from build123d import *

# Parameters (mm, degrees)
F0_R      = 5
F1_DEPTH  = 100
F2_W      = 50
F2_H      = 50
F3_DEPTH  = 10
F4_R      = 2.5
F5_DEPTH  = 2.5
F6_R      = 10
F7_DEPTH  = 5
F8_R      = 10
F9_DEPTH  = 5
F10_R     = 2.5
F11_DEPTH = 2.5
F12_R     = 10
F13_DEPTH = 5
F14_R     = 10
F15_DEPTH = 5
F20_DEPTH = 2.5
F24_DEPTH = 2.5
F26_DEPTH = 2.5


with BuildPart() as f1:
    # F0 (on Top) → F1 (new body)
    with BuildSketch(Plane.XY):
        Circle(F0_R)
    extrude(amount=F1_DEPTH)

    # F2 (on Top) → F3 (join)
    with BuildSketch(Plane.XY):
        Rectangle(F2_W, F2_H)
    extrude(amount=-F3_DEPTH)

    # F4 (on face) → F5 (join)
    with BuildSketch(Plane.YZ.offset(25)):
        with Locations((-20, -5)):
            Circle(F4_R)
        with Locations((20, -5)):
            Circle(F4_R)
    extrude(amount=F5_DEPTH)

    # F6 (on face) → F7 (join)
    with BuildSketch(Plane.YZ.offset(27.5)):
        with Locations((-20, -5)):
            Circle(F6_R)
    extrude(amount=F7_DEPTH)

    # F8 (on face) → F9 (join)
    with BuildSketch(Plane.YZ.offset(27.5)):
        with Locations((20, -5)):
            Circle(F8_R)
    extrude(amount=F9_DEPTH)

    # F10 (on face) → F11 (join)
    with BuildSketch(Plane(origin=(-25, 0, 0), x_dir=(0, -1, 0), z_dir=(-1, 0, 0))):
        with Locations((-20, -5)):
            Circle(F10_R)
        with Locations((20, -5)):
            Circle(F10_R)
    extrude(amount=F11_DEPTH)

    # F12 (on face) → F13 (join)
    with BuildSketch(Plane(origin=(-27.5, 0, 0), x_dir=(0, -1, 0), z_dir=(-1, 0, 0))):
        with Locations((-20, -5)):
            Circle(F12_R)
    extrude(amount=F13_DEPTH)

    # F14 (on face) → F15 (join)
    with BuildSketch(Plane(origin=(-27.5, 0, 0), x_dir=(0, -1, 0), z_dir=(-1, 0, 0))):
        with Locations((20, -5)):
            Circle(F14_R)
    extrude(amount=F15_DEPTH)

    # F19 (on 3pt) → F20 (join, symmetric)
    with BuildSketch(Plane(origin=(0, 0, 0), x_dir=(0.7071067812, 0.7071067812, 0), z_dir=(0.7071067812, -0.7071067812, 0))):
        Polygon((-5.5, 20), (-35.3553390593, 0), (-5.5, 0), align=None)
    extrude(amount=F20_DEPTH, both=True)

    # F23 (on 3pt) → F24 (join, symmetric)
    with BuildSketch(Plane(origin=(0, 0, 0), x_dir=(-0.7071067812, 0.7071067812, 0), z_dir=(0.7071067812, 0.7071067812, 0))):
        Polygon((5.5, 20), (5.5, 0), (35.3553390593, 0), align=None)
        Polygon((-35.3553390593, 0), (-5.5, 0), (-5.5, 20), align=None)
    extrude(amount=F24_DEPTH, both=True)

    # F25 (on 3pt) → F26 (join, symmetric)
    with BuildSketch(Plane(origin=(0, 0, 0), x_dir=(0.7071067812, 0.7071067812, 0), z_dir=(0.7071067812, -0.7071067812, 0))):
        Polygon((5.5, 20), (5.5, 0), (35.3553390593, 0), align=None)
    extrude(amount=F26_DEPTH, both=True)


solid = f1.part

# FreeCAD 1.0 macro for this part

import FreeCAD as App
import Part
import Sketcher

doc = App.newDocument("Part")
params = doc.addObject("Spreadsheet::Sheet", "Params")
for row, (alias, value) in enumerate([
    ("sketch1_diameter", "10 mm"),
    ("pad1_length", "100 mm"),
    ("sketch2_width", "50 mm"),
    ("pad2_length", "10 mm"),
    ("sketch3_diameter", "5 mm"),
    ("pad3_length", "2.5 mm"),
    ("sketch4_diameter", "20 mm"),
    ("pad4_length", "5 mm"),
    ("sketch5_diameter", "20 mm"),
    ("pad5_length", "5 mm"),
    ("sketch6_diameter", "5 mm"),
    ("pad6_length", "2.5 mm"),
    ("sketch7_diameter", "20 mm"),
    ("pad7_length", "5 mm"),
    ("sketch8_diameter", "20 mm"),
    ("pad8_length", "5 mm"),
    ("sketch9_height", "20 mm"),
    ("pad9_length", "5 mm"),
    ("sketch10_height", "20 mm"),
    ("pad10_length", "5 mm"),
    ("sketch11_height", "20 mm"),
    ("pad11_length", "5 mm"),
], start=1):
    params.set(f"A{row}", alias)
    params.set(f"B{row}", "=" + value)
    params.setAlias(f"B{row}", alias)

body = doc.addObject("PartDesign::Body", "Body")

sketch1 = body.newObject("Sketcher::SketchObject", "Sketch")
sketch1.AttachmentSupport = (doc.getObject("XY_Plane"), [""])
sketch1.MapMode = "FlatFace"
sketch1.addGeometry(Part.Circle(App.Vector(0, 0, 0), App.Vector(0, 0, 1), 5), False)
sketch1.addConstraint([
    Sketcher.Constraint("Coincident", 0, 3, -1, 1),
    Sketcher.Constraint("Diameter", 0, 10.0),
])
sketch1.setExpression("Constraints[1]", "Params.sketch1_diameter")
pad1 = body.newObject("PartDesign::Pad", "Pad")
pad1.Profile = sketch1
pad1.setExpression("Length", "Params.pad1_length")

sketch2 = body.newObject("Sketcher::SketchObject", "Sketch001")
sketch2.AttachmentSupport = (doc.getObject("XY_Plane"), [""])
sketch2.MapMode = "FlatFace"
sketch2.addGeometry([
    Part.LineSegment(App.Vector(-25, 25, 0), App.Vector(-25, -25, 0)),
    Part.LineSegment(App.Vector(-25, -25, 0), App.Vector(25, -25, 0)),
    Part.LineSegment(App.Vector(25, -25, 0), App.Vector(25, 25, 0)),
    Part.LineSegment(App.Vector(25, 25, 0), App.Vector(-25, 25, 0)),
], False)
sketch2.addConstraint([
    Sketcher.Constraint("Coincident", 0, 2, 1, 1),
    Sketcher.Constraint("Coincident", 1, 2, 2, 1),
    Sketcher.Constraint("Coincident", 2, 2, 3, 1),
    Sketcher.Constraint("Coincident", 3, 2, 0, 1),
    Sketcher.Constraint("Vertical", 0),
    Sketcher.Constraint("Horizontal", 1),
    Sketcher.Constraint("Vertical", 2),
    Sketcher.Constraint("Horizontal", 3),
    Sketcher.Constraint("Symmetric", 0, 2, 2, 2, -1, 1),
    Sketcher.Constraint("Equal", 3, 0),
    Sketcher.Constraint("DistanceX", 1, 1, 1, 2, 50.0),
])
sketch2.setExpression("Constraints[10]", "Params.sketch2_width")
pad2 = body.newObject("PartDesign::Pad", "Pad001")
pad2.Profile = sketch2
pad2.setExpression("Length", "Params.pad2_length")
pad2.Reversed = True

sketch3 = body.newObject("Sketcher::SketchObject", "Sketch002")
sketch3.AttachmentSupport = (doc.getObject("YZ_Plane"), [""])
sketch3.MapMode = "FlatFace"
sketch3.AttachmentOffset = App.Placement(App.Vector(0, 0, 25), App.Rotation())
sketch3.addGeometry([
    Part.Circle(App.Vector(-20, -5, 0), App.Vector(0, 0, 1), 2.5),
    Part.Circle(App.Vector(20, -5, 0), App.Vector(0, 0, 1), 2.5),
], False)
sketch3.addConstraint([
    Sketcher.Constraint("Equal", 0, 1),
    Sketcher.Constraint("Symmetric", 0, 3, 1, 3, -2),
    Sketcher.Constraint("Diameter", 0, 5.0),
    Sketcher.Constraint("DistanceX", 0, 3, -1, 1, 20.0),
    Sketcher.Constraint("DistanceY", 0, 3, -1, 1, 5.0),
])
sketch3.setExpression("Constraints[2]", "Params.sketch3_diameter")
pad3 = body.newObject("PartDesign::Pad", "Pad002")
pad3.Profile = sketch3
pad3.setExpression("Length", "Params.pad3_length")

sketch4 = body.newObject("Sketcher::SketchObject", "Sketch003")
sketch4.AttachmentSupport = (doc.getObject("YZ_Plane"), [""])
sketch4.MapMode = "FlatFace"
sketch4.AttachmentOffset = App.Placement(App.Vector(0, 0, 27.5), App.Rotation())
sketch4.addGeometry(Part.Circle(App.Vector(-20, -5, 0), App.Vector(0, 0, 1), 10), False)
sketch4.addConstraint([
    Sketcher.Constraint("Diameter", 0, 20.0),
    Sketcher.Constraint("DistanceX", 0, 3, -1, 1, 20.0),
    Sketcher.Constraint("DistanceY", 0, 3, -1, 1, 5.0),
])
sketch4.setExpression("Constraints[0]", "Params.sketch4_diameter")
pad4 = body.newObject("PartDesign::Pad", "Pad003")
pad4.Profile = sketch4
pad4.setExpression("Length", "Params.pad4_length")

sketch5 = body.newObject("Sketcher::SketchObject", "Sketch004")
sketch5.AttachmentSupport = (doc.getObject("YZ_Plane"), [""])
sketch5.MapMode = "FlatFace"
sketch5.AttachmentOffset = App.Placement(App.Vector(0, 0, 27.5), App.Rotation())
sketch5.addGeometry(Part.Circle(App.Vector(20, -5, 0), App.Vector(0, 0, 1), 10), False)
sketch5.addConstraint([
    Sketcher.Constraint("Diameter", 0, 20.0),
    Sketcher.Constraint("DistanceX", -1, 1, 0, 3, 20.0),
    Sketcher.Constraint("DistanceY", 0, 3, -1, 1, 5.0),
])
sketch5.setExpression("Constraints[0]", "Params.sketch5_diameter")
pad5 = body.newObject("PartDesign::Pad", "Pad004")
pad5.Profile = sketch5
pad5.setExpression("Length", "Params.pad5_length")

sketch6 = body.newObject("Sketcher::SketchObject", "Sketch005")
sketch6.AttachmentSupport = (doc.getObject("YZ_Plane"), [""])
sketch6.MapMode = "FlatFace"
sketch6.AttachmentOffset = App.Placement(App.Vector(0, 0, -25), App.Rotation())
sketch6.addGeometry([
    Part.Circle(App.Vector(20, -5, 0), App.Vector(0, 0, 1), 2.5),
    Part.Circle(App.Vector(-20, -5, 0), App.Vector(0, 0, 1), 2.5),
], False)
sketch6.addConstraint([
    Sketcher.Constraint("Equal", 0, 1),
    Sketcher.Constraint("Symmetric", 0, 3, 1, 3, -2),
    Sketcher.Constraint("Diameter", 0, 5.0),
    Sketcher.Constraint("DistanceX", -1, 1, 0, 3, 20.0),
    Sketcher.Constraint("DistanceY", 0, 3, -1, 1, 5.0),
])
sketch6.setExpression("Constraints[2]", "Params.sketch6_diameter")
pad6 = body.newObject("PartDesign::Pad", "Pad005")
pad6.Profile = sketch6
pad6.setExpression("Length", "Params.pad6_length")
pad6.Reversed = True

sketch7 = body.newObject("Sketcher::SketchObject", "Sketch006")
sketch7.AttachmentSupport = (doc.getObject("YZ_Plane"), [""])
sketch7.MapMode = "FlatFace"
sketch7.AttachmentOffset = App.Placement(App.Vector(0, 0, -27.5), App.Rotation())
sketch7.addGeometry(Part.Circle(App.Vector(20, -5, 0), App.Vector(0, 0, 1), 10), False)
sketch7.addConstraint([
    Sketcher.Constraint("Diameter", 0, 20.0),
    Sketcher.Constraint("DistanceX", -1, 1, 0, 3, 20.0),
    Sketcher.Constraint("DistanceY", 0, 3, -1, 1, 5.0),
])
sketch7.setExpression("Constraints[0]", "Params.sketch7_diameter")
pad7 = body.newObject("PartDesign::Pad", "Pad006")
pad7.Profile = sketch7
pad7.setExpression("Length", "Params.pad7_length")
pad7.Reversed = True

sketch8 = body.newObject("Sketcher::SketchObject", "Sketch007")
sketch8.AttachmentSupport = (doc.getObject("YZ_Plane"), [""])
sketch8.MapMode = "FlatFace"
sketch8.AttachmentOffset = App.Placement(App.Vector(0, 0, -27.5), App.Rotation())
sketch8.addGeometry(Part.Circle(App.Vector(-20, -5, 0), App.Vector(0, 0, 1), 10), False)
sketch8.addConstraint([
    Sketcher.Constraint("Diameter", 0, 20.0),
    Sketcher.Constraint("DistanceX", 0, 3, -1, 1, 20.0),
    Sketcher.Constraint("DistanceY", 0, 3, -1, 1, 5.0),
])
sketch8.setExpression("Constraints[0]", "Params.sketch8_diameter")
pad8 = body.newObject("PartDesign::Pad", "Pad007")
pad8.Profile = sketch8
pad8.setExpression("Length", "Params.pad8_length")
pad8.Reversed = True

sketch9 = body.newObject("Sketcher::SketchObject", "Sketch008")
sketch9.Placement = App.Placement(App.Vector(0, 0, 0), App.Rotation(App.Vector(0.707106781, 0.707106781, 0), App.Vector(0, 0, 0.999999999), App.Vector(0.707106781, -0.707106781, 0), "ZXY"))
sketch9.addGeometry([
    Part.LineSegment(App.Vector(-5, 20, 0), App.Vector(-35, 0, 0)),
    Part.LineSegment(App.Vector(-35, 0, 0), App.Vector(-5, 0, 0)),
    Part.LineSegment(App.Vector(-5, 0, 0), App.Vector(-5, 20, 0)),
], False)
sketch9.addConstraint([
    Sketcher.Constraint("Coincident", 0, 2, 1, 1),
    Sketcher.Constraint("Coincident", 1, 2, 2, 1),
    Sketcher.Constraint("Coincident", 2, 2, 0, 1),
    Sketcher.Constraint("Horizontal", 1),
    Sketcher.Constraint("Vertical", 2),
    Sketcher.Constraint("PointOnObject", 0, 2, -1),
    Sketcher.Constraint("DistanceY", 2, 1, 2, 2, 20.0),
    Sketcher.Constraint("DistanceX", 1, 2, -1, 1, 5.5),
    Sketcher.Constraint("DistanceX", 1, 1, 1, 2, 29.855339),
])
sketch9.setExpression("Constraints[6]", "Params.sketch9_height")
pad9 = body.newObject("PartDesign::Pad", "Pad008")
pad9.Profile = sketch9
pad9.setExpression("Length", "Params.pad9_length")
pad9.Midplane = True

sketch10 = body.newObject("Sketcher::SketchObject", "Sketch009")
sketch10.Placement = App.Placement(App.Vector(0, 0, 0), App.Rotation(App.Vector(-0.707106781, 0.707106781, 0), App.Vector(0, 0, 0.999999999), App.Vector(0.707106781, 0.707106781, 0), "ZXY"))
sketch10.addGeometry([
    Part.LineSegment(App.Vector(5, 20, 0), App.Vector(5, 0, 0)),
    Part.LineSegment(App.Vector(5, 0, 0), App.Vector(35, 0, 0)),
    Part.LineSegment(App.Vector(35, 0, 0), App.Vector(5, 20, 0)),
    Part.LineSegment(App.Vector(-35, 0, 0), App.Vector(-5, 0, 0)),
    Part.LineSegment(App.Vector(-5, 0, 0), App.Vector(-5, 20, 0)),
    Part.LineSegment(App.Vector(-5, 20, 0), App.Vector(-35, 0, 0)),
], False)
sketch10.addConstraint([
    Sketcher.Constraint("Coincident", 0, 2, 1, 1),
    Sketcher.Constraint("Coincident", 1, 2, 2, 1),
    Sketcher.Constraint("Coincident", 2, 2, 0, 1),
    Sketcher.Constraint("Coincident", 3, 2, 4, 1),
    Sketcher.Constraint("Coincident", 4, 2, 5, 1),
    Sketcher.Constraint("Coincident", 5, 2, 3, 1),
    Sketcher.Constraint("Vertical", 0),
    Sketcher.Constraint("Horizontal", 1),
    Sketcher.Constraint("Horizontal", 3),
    Sketcher.Constraint("Vertical", 4),
    Sketcher.Constraint("Symmetric", 0, 2, 3, 2, -1, 1),
    Sketcher.Constraint("Symmetric", 1, 2, 5, 2, -2),
    Sketcher.Constraint("Horizontal", 2, 2, 4, 2),
    Sketcher.Constraint("DistanceY", 0, 2, 0, 1, 20.0),
    Sketcher.Constraint("DistanceX", 3, 2, 0, 2, 11.0),
    Sketcher.Constraint("DistanceX", 1, 1, 1, 2, 29.855339),
])
sketch10.setExpression("Constraints[13]", "Params.sketch10_height")
pad10 = body.newObject("PartDesign::Pad", "Pad009")
pad10.Profile = sketch10
pad10.setExpression("Length", "Params.pad10_length")
pad10.Midplane = True

sketch11 = body.newObject("Sketcher::SketchObject", "Sketch010")
sketch11.Placement = App.Placement(App.Vector(0, 0, 0), App.Rotation(App.Vector(0.707106781, 0.707106781, 0), App.Vector(0, 0, 0.999999999), App.Vector(0.707106781, -0.707106781, 0), "ZXY"))
sketch11.addGeometry([
    Part.LineSegment(App.Vector(5, 20, 0), App.Vector(5, 0, 0)),
    Part.LineSegment(App.Vector(5, 0, 0), App.Vector(35, 0, 0)),
    Part.LineSegment(App.Vector(35, 0, 0), App.Vector(5, 20, 0)),
], False)
sketch11.addConstraint([
    Sketcher.Constraint("Coincident", 0, 2, 1, 1),
    Sketcher.Constraint("Coincident", 1, 2, 2, 1),
    Sketcher.Constraint("Coincident", 2, 2, 0, 1),
    Sketcher.Constraint("Vertical", 0),
    Sketcher.Constraint("Horizontal", 1),
    Sketcher.Constraint("PointOnObject", 0, 2, -1),
    Sketcher.Constraint("DistanceY", 0, 2, 0, 1, 20.0),
    Sketcher.Constraint("DistanceX", -1, 1, 0, 2, 5.5),
    Sketcher.Constraint("DistanceX", 1, 1, 1, 2, 29.855339),
])
sketch11.setExpression("Constraints[6]", "Params.sketch11_height")
pad11 = body.newObject("PartDesign::Pad", "Pad010")
pad11.Profile = sketch11
pad11.setExpression("Length", "Params.pad11_length")
pad11.Midplane = True

doc.recompute()
